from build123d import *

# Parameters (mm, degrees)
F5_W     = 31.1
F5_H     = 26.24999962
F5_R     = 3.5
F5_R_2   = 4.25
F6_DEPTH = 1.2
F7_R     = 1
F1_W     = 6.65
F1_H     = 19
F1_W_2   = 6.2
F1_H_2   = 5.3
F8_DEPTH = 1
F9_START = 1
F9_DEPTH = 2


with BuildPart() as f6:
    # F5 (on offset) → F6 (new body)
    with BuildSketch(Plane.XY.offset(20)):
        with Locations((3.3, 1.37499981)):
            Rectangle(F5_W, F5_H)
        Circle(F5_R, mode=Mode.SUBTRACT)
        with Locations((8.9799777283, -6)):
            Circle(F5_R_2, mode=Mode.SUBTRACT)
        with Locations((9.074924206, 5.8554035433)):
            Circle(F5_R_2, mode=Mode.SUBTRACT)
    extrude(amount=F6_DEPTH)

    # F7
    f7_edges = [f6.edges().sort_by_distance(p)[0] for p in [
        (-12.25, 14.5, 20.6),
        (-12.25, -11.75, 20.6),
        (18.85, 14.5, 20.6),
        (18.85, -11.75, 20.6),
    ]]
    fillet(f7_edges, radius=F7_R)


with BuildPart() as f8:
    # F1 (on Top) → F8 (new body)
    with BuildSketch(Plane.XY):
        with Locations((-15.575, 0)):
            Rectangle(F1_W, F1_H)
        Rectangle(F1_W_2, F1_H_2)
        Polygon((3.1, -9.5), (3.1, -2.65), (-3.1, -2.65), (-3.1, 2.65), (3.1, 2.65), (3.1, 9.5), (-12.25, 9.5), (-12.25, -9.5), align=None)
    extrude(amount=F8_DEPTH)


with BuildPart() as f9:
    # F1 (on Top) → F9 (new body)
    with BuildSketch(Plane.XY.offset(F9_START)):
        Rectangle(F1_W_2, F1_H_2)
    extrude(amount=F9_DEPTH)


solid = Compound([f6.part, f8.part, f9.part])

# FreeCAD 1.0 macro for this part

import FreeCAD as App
import Part
import Sketcher
Q = App.Units.Quantity


def edges_at(feature, points):
    """Names of the edges that pass closest to the given points."""
    edges = feature.Shape.Edges
    near = lambda p: min(range(len(edges)), key=lambda i: edges[i].distToShape(Part.Vertex(*p))[0])
    return sorted({f"Edge{near(p) + 1}" for p in points})

doc = App.newDocument("Part")
body = doc.addObject("PartDesign::Body", "Body")

# Sketch on XY plane
sketch1 = body.newObject("Sketcher::SketchObject", "Sketch")
sketch1.AttachmentSupport = (doc.getObject("XY_Plane"), [""])
sketch1.MapMode = "FlatFace"
sketch1.AttachmentOffset = App.Placement(App.Vector(0, 0, 20), App.Rotation())
sketch1.addGeometry(Part.LineSegment(App.Vector(-12.2, 14.5, 0), App.Vector(-12.2, -11.8, 0)), False)
sketch1.addGeometry(Part.LineSegment(App.Vector(-12.2, -11.8, 0), App.Vector(18.9, -11.8, 0)), False)
sketch1.addGeometry(Part.LineSegment(App.Vector(18.9, -11.8, 0), App.Vector(18.9, 14.5, 0)), False)
sketch1.addGeometry(Part.LineSegment(App.Vector(18.9, 14.5, 0), App.Vector(-12.2, 14.5, 0)), False)
sketch1.addGeometry(Part.Circle(App.Vector(9, -6, 0), App.Vector(0, 0, 1), 4.2), False)
sketch1.addGeometry(Part.Circle(App.Vector(0, 0, 0), App.Vector(0, 0, 1), 3.5), False)
sketch1.addGeometry(Part.Circle(App.Vector(9.1, 5.9, 0), App.Vector(0, 0, 1), 4.2), False)
sketch1.addConstraint(Sketcher.Constraint("Coincident", 0, 2, 1, 1))
sketch1.addConstraint(Sketcher.Constraint("Coincident", 1, 2, 2, 1))
sketch1.addConstraint(Sketcher.Constraint("Coincident", 2, 2, 3, 1))
sketch1.addConstraint(Sketcher.Constraint("Coincident", 3, 2, 0, 1))
sketch1.addConstraint(Sketcher.Constraint("Vertical", 0))
sketch1.addConstraint(Sketcher.Constraint("Horizontal", 1))
sketch1.addConstraint(Sketcher.Constraint("Vertical", 2))
sketch1.addConstraint(Sketcher.Constraint("Horizontal", 3))
sketch1.addConstraint(Sketcher.Constraint("Coincident", 5, 3, -1, 1))
sketch1.addConstraint(Sketcher.Constraint("Equal", 4, 6))
sketch1.addConstraint(Sketcher.Constraint("Diameter", 5, Q("7 mm")))
sketch1.addConstraint(Sketcher.Constraint("Diameter", 4, Q("8.5 mm")))
sketch1.addConstraint(Sketcher.Constraint("DistanceX", 1, 1, 1, 2, Q("31.1 mm")))
sketch1.addConstraint(Sketcher.Constraint("DistanceY", 4, 3, -1, 1, Q("6 mm")))
sketch1.addConstraint(Sketcher.Constraint("DistanceY", 0, 2, 0, 1, Q("26.25 mm")))
sketch1.addConstraint(Sketcher.Constraint("DistanceY", -1, 1, 2, 2, Q("14.5 mm")))
sketch1.addConstraint(Sketcher.Constraint("DistanceX", 0, 2, -1, 1, Q("12.25 mm")))
sketch1.addConstraint(Sketcher.Constraint("DistanceX", -1, 1, 4, 3, Q("8.979978 mm")))
sketch1.addConstraint(Sketcher.Constraint("DistanceX", -1, 1, 6, 3, Q("9.074924 mm")))
sketch1.addConstraint(Sketcher.Constraint("DistanceY", -1, 1, 6, 3, Q("5.855404 mm")))
pad1 = body.newObject("PartDesign::Pad", "Pad")
pad1.Profile = sketch1
pad1.Length = 1.2
doc.recompute()

fillet = body.newObject("PartDesign::Fillet", "Fillet")
fillet.Base = (pad1, edges_at(pad1, [
    (-12.25, 14.5, 20.6),
    (-12.25, -11.75, 20.6),
    (18.85, 14.5, 20.6),
    (18.85, -11.75, 20.6),
]))
fillet.Radius = 1
body2 = doc.addObject("PartDesign::Body", "Body001")

# Sketch on XY plane
sketch2 = body2.newObject("Sketcher::SketchObject", "Sketch001")
sketch2.AttachmentSupport = (doc.getObject("XY_Plane001"), [""])
sketch2.MapMode = "FlatFace"
sketch2.addGeometry(Part.LineSegment(App.Vector(-19, 10, 0), App.Vector(-19, -10, 0)), False)
sketch2.addGeometry(Part.LineSegment(App.Vector(-19, -10, 0), App.Vector(3, -10, 0)), False)
sketch2.addGeometry(Part.LineSegment(App.Vector(3, -10, 0), App.Vector(3, 10, 0)), False)
sketch2.addGeometry(Part.LineSegment(App.Vector(3, 10, 0), App.Vector(-19, 10, 0)), False)
sketch2.addConstraint(Sketcher.Constraint("Coincident", 0, 2, 1, 1))
sketch2.addConstraint(Sketcher.Constraint("Coincident", 1, 2, 2, 1))
sketch2.addConstraint(Sketcher.Constraint("Coincident", 2, 2, 3, 1))
sketch2.addConstraint(Sketcher.Constraint("Coincident", 3, 2, 0, 1))
sketch2.addConstraint(Sketcher.Constraint("Vertical", 0))
sketch2.addConstraint(Sketcher.Constraint("Horizontal", 1))
sketch2.addConstraint(Sketcher.Constraint("Vertical", 2))
sketch2.addConstraint(Sketcher.Constraint("Horizontal", 3))
sketch2.addConstraint(Sketcher.Constraint("DistanceX", 1, 1, 1, 2, Q("22 mm")))
sketch2.addConstraint(Sketcher.Constraint("DistanceY", 0, 2, 0, 1, Q("19 mm")))
sketch2.addConstraint(Sketcher.Constraint("DistanceX", 0, 2, -1, 1, Q("18.9 mm")))
sketch2.addConstraint(Sketcher.Constraint("DistanceY", 0, 2, -1, 1, Q("9.5 mm")))
pad2 = body2.newObject("PartDesign::Pad", "Pad001")
pad2.Profile = sketch2
pad2.Length = 1
body3 = doc.addObject("PartDesign::Body", "Body002")

# Sketch on XY plane
sketch3 = body3.newObject("Sketcher::SketchObject", "Sketch002")
sketch3.AttachmentSupport = (doc.getObject("XY_Plane002"), [""])
sketch3.MapMode = "FlatFace"
sketch3.AttachmentOffset = App.Placement(App.Vector(0, 0, 1), App.Rotation())
sketch3.addGeometry(Part.LineSegment(App.Vector(-3, 3, 0), App.Vector(-3, -3, 0)), False)
sketch3.addGeometry(Part.LineSegment(App.Vector(-3, -3, 0), App.Vector(3, -3, 0)), False)
sketch3.addGeometry(Part.LineSegment(App.Vector(3, -3, 0), App.Vector(3, 3, 0)), False)
sketch3.addGeometry(Part.LineSegment(App.Vector(3, 3, 0), App.Vector(-3, 3, 0)), False)
sketch3.addConstraint(Sketcher.Constraint("Coincident", 0, 2, 1, 1))
sketch3.addConstraint(Sketcher.Constraint("Coincident", 1, 2, 2, 1))
sketch3.addConstraint(Sketcher.Constraint("Coincident", 2, 2, 3, 1))
sketch3.addConstraint(Sketcher.Constraint("Coincident", 3, 2, 0, 1))
sketch3.addConstraint(Sketcher.Constraint("Vertical", 0))
sketch3.addConstraint(Sketcher.Constraint("Horizontal", 1))
sketch3.addConstraint(Sketcher.Constraint("Vertical", 2))
sketch3.addConstraint(Sketcher.Constraint("Horizontal", 3))
sketch3.addConstraint(Sketcher.Constraint("Symmetric", 0, 2, 2, 2, -1, 1))
sketch3.addConstraint(Sketcher.Constraint("DistanceX", 1, 1, 1, 2, Q("6.2 mm")))
sketch3.addConstraint(Sketcher.Constraint("DistanceY", 0, 2, 0, 1, Q("5.3 mm")))
pad3 = body3.newObject("PartDesign::Pad", "Pad002")
pad3.Profile = sketch3
pad3.Length = 2

doc.recompute()
